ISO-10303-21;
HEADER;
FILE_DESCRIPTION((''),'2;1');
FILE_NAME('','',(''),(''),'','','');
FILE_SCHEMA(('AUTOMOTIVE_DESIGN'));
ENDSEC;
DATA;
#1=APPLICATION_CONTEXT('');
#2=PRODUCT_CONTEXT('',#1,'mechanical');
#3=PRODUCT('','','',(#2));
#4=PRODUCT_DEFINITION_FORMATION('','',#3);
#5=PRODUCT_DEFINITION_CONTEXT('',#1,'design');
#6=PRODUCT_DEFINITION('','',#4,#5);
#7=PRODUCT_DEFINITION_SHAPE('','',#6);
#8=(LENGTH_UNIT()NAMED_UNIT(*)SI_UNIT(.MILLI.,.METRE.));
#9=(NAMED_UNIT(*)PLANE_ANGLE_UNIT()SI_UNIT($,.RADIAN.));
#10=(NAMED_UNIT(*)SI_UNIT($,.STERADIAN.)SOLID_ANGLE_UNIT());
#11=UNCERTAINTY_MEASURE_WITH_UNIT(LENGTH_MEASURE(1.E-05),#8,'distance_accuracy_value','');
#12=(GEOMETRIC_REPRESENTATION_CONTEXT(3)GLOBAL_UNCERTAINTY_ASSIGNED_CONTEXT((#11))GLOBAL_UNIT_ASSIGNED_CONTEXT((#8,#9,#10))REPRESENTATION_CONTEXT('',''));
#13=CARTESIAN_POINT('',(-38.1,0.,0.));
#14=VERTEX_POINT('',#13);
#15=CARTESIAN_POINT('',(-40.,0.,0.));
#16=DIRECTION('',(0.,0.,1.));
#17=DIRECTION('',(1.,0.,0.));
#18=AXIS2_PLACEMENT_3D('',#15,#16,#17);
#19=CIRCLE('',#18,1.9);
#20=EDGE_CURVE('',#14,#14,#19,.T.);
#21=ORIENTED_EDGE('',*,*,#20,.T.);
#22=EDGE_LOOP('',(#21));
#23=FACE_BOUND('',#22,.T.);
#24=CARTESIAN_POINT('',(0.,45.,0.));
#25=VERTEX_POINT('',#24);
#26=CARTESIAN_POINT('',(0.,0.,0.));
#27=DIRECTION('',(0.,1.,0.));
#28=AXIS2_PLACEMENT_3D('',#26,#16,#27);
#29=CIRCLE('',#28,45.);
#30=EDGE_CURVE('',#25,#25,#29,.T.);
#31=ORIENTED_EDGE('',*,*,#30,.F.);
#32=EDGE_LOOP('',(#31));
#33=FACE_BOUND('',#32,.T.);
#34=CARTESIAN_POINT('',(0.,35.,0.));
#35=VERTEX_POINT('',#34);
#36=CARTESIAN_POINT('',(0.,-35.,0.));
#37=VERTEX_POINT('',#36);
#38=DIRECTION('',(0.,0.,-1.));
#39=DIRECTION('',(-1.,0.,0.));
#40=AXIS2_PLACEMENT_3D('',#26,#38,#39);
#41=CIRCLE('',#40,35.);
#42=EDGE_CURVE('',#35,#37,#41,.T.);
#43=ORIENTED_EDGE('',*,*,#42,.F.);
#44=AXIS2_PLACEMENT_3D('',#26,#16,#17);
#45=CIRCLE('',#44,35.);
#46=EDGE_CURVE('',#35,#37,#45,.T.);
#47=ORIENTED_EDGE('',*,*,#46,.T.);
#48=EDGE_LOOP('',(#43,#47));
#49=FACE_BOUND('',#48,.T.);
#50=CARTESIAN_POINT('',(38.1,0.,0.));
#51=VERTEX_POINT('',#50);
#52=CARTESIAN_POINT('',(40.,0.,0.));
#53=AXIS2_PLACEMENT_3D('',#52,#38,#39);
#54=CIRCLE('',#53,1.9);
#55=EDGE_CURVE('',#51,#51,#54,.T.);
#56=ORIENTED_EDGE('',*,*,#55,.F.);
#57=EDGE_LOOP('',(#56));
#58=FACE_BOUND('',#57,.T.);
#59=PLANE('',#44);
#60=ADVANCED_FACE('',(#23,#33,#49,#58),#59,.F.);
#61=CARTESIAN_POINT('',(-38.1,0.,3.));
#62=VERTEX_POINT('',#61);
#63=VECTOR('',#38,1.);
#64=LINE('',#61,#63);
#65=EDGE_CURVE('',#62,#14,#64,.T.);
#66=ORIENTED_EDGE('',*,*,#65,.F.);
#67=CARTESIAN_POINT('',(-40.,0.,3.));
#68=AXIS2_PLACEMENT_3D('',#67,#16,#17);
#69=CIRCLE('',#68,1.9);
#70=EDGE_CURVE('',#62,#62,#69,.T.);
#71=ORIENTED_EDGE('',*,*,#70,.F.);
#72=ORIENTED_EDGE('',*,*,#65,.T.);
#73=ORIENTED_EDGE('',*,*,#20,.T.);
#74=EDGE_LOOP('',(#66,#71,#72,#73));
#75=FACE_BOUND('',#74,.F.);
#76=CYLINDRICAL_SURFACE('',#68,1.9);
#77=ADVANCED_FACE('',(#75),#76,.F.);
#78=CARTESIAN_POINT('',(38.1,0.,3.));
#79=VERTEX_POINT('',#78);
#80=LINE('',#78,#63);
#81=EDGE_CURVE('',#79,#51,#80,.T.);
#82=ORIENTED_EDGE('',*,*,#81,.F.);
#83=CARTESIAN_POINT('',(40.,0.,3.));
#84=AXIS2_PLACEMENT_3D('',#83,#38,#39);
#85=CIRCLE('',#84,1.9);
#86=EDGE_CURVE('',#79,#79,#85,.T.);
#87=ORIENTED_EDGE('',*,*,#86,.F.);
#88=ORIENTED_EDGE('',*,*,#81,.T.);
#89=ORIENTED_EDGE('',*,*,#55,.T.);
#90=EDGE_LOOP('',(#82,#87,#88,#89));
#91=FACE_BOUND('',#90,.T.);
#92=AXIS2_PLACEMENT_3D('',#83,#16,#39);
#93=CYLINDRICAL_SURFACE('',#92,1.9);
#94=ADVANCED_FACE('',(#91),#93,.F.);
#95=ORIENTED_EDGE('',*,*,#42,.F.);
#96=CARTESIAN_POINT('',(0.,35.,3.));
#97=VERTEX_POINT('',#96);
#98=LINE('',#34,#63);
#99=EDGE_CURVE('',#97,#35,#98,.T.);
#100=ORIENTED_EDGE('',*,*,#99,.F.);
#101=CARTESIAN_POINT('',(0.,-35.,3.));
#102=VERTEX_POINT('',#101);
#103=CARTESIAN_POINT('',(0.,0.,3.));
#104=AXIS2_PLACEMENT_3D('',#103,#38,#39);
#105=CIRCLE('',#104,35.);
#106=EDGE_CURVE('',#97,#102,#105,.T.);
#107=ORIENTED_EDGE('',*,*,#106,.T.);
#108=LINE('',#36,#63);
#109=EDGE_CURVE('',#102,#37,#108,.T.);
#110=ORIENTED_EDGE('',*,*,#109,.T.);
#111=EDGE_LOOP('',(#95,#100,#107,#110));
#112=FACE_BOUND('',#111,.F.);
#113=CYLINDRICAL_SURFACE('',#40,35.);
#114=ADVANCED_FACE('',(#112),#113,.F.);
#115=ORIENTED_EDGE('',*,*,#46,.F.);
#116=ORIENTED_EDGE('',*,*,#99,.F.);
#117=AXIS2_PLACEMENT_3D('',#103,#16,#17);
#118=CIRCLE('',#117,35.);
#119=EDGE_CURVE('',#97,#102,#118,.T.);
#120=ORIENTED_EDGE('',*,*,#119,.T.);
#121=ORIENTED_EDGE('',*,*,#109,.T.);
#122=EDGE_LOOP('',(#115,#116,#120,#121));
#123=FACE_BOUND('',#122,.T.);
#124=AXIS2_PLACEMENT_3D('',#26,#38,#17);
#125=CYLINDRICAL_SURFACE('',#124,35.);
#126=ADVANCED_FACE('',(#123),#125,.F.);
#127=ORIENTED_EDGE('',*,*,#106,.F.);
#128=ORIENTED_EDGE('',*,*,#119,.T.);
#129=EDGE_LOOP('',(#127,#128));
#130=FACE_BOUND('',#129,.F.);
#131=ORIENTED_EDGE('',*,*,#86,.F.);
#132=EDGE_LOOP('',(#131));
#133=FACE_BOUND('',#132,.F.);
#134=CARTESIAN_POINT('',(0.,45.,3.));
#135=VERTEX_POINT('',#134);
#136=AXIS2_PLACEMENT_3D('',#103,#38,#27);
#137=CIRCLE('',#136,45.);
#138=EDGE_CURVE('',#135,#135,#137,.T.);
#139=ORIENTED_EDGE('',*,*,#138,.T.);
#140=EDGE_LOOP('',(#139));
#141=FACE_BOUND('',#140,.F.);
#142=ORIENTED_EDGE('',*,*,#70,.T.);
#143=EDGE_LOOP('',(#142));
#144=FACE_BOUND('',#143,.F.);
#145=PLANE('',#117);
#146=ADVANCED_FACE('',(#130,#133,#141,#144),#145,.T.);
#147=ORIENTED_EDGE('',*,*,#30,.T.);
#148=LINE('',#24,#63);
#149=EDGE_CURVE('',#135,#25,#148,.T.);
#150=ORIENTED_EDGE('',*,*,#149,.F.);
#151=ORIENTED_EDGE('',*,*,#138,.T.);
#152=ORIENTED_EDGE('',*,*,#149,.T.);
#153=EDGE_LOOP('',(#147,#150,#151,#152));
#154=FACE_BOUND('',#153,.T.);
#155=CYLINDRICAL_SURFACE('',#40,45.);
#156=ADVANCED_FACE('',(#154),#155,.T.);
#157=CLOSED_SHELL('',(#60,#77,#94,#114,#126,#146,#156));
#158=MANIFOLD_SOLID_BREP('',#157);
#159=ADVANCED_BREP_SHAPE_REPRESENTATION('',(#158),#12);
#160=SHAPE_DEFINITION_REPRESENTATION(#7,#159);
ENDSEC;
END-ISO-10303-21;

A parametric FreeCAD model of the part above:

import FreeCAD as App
import Part
import Sketcher
from FreeCAD import Vector

doc = App.newDocument("Part")
params = doc.addObject("Spreadsheet::Sheet", "Params")
for row, (alias, value) in enumerate([
    ("sketch1_diameter", "90 mm"),
    ("sketch1_diameter2", "70 mm"),
    ("pad1_length", "3 mm"),
    ("sketch2_diameter", "3.8 mm"),
    ("pocket1_length", "25 mm"),
    ("pocket2_length", "25 mm"),
], start=1):
    params.set(f"A{row}", alias)
    params.set(f"B{row}", "=" + value)
    params.setAlias(f"B{row}", alias)

body = doc.addObject("PartDesign::Body", "Body")

# Sketch on XY plane
sketch1 = body.newObject("Sketcher::SketchObject", "Sketch")
sketch1.AttachmentSupport = (doc.getObject("XY_Plane"), [""])
sketch1.MapMode = "FlatFace"
sketch1.addGeometry(Part.Circle(Vector(0, 0, 0), Vector(0, 0, 1), 45), False)
sketch1.addGeometry(Part.Circle(Vector(0, 0, 0), Vector(0, 0, 1), 35), False)
sketch1.addConstraint(Sketcher.Constraint("Coincident", 0, 3, -1, 1))
sketch1.addConstraint(Sketcher.Constraint("Coincident", 1, 3, -1, 1))
sketch1.addConstraint(Sketcher.Constraint("Diameter", 0, 90.0))
sketch1.addConstraint(Sketcher.Constraint("Diameter", 1, 70.0))
sketch1.setExpression("Constraints[2]", "Params.sketch1_diameter")
sketch1.setExpression("Constraints[3]", "Params.sketch1_diameter2")
pad1 = body.newObject("PartDesign::Pad", "Pad")
pad1.Profile = sketch1
pad1.setExpression("Length", "Params.pad1_length")

# Sketch on XY plane
sketch2 = body.newObject("Sketcher::SketchObject", "Sketch001")
sketch2.AttachmentSupport = (doc.getObject("XY_Plane"), [""])
sketch2.MapMode = "FlatFace"
sketch2.AttachmentOffset = App.Placement(Vector(0, 0, 3), App.Rotation())
sketch2.addGeometry(Part.Circle(Vector(-40, 0, 0), Vector(0, 0, 1), 1.9), False)
sketch2.addGeometry(Part.Circle(Vector(40, 0, 0), Vector(0, 0, 1), 1.9), False)
sketch2.addConstraint(Sketcher.Constraint("Equal", 0, 1))
sketch2.addConstraint(Sketcher.Constraint("Symmetric", 0, 3, 1, 3, -1, 1))
sketch2.addConstraint(Sketcher.Constraint("PointOnObject", 0, 3, -1))
sketch2.addConstraint(Sketcher.Constraint("Diameter", 0, 3.8))
sketch2.addConstraint(Sketcher.Constraint("DistanceX", 0, 3, -1, 1, 40.0))
sketch2.setExpression("Constraints[3]", "Params.sketch2_diameter")
pocket1 = body.newObject("PartDesign::Pocket", "Pocket")
pocket1.Profile = sketch2
pocket1.setExpression("Length", "Params.pocket1_length")

# Sketch on XY plane
sketch3 = body.newObject("Sketcher::SketchObject", "Sketch002")
sketch3.AttachmentSupport = (doc.getObject("XY_Plane"), [""])
sketch3.MapMode = "FlatFace"
sketch3.AttachmentOffset = App.Placement(Vector(0, 0, 3), App.Rotation())
sketch3.addGeometry(Part.LineSegment(Vector(0, 53, 0), Vector(0, -45, 0)), False)
sketch3.addGeometry(Part.LineSegment(Vector(0, -45, 0), Vector(55, -45, 0)), False)
sketch3.addGeometry(Part.LineSegment(Vector(55, -45, 0), Vector(55, 53, 0)), False)
sketch3.addGeometry(Part.LineSegment(Vector(55, 53, 0), Vector(0, 53, 0)), False)
sketch3.addConstraint(Sketcher.Constraint("Coincident", 0, 2, 1, 1))
sketch3.addConstraint(Sketcher.Constraint("Coincident", 1, 2, 2, 1))
sketch3.addConstraint(Sketcher.Constraint("Coincident", 2, 2, 3, 1))
sketch3.addConstraint(Sketcher.Constraint("Coincident", 3, 2, 0, 1))
sketch3.addConstraint(Sketcher.Constraint("Vertical", 0))
sketch3.addConstraint(Sketcher.Constraint("Horizontal", 1))
sketch3.addConstraint(Sketcher.Constraint("Vertical", 2))
sketch3.addConstraint(Sketcher.Constraint("Horizontal", 3))
sketch3.addConstraint(Sketcher.Constraint("PointOnObject", 0, 2, -2))
sketch3.addConstraint(Sketcher.Constraint("DistanceY", 0, 2, -1, 1, 45.0))
sketch3.addConstraint(Sketcher.Constraint("DistanceX", 1, 1, 1, 2, 55.17469))
sketch3.addConstraint(Sketcher.Constraint("DistanceY", 0, 2, 0, 1, 97.550949))
pocket2 = body.newObject("PartDesign::Pocket", "Pocket001")
pocket2.Profile = sketch3
pocket2.setExpression("Length", "Params.pocket2_length")
body2 = doc.addObject("PartDesign::Body", "Body001")
doc.recompute()

body2.BaseFeature = body
doc.recompute()

mirroring = doc.addObject("Part::Mirroring", "Mirroring")
mirroring.Source = body
mirroring.Base = Vector(0, 40, 1.5)
mirroring.Normal = Vector(1, 0, 0)
body3 = doc.addObject("PartDesign::Body", "Body002")
body3.BaseFeature = mirroring
boolean = body2.newObject("PartDesign::Boolean", "Boolean")
boolean.Type = "Fuse"
boolean.addObjects([body3])
doc.recompute()
mirroring.Visibility = False

doc.recompute()
